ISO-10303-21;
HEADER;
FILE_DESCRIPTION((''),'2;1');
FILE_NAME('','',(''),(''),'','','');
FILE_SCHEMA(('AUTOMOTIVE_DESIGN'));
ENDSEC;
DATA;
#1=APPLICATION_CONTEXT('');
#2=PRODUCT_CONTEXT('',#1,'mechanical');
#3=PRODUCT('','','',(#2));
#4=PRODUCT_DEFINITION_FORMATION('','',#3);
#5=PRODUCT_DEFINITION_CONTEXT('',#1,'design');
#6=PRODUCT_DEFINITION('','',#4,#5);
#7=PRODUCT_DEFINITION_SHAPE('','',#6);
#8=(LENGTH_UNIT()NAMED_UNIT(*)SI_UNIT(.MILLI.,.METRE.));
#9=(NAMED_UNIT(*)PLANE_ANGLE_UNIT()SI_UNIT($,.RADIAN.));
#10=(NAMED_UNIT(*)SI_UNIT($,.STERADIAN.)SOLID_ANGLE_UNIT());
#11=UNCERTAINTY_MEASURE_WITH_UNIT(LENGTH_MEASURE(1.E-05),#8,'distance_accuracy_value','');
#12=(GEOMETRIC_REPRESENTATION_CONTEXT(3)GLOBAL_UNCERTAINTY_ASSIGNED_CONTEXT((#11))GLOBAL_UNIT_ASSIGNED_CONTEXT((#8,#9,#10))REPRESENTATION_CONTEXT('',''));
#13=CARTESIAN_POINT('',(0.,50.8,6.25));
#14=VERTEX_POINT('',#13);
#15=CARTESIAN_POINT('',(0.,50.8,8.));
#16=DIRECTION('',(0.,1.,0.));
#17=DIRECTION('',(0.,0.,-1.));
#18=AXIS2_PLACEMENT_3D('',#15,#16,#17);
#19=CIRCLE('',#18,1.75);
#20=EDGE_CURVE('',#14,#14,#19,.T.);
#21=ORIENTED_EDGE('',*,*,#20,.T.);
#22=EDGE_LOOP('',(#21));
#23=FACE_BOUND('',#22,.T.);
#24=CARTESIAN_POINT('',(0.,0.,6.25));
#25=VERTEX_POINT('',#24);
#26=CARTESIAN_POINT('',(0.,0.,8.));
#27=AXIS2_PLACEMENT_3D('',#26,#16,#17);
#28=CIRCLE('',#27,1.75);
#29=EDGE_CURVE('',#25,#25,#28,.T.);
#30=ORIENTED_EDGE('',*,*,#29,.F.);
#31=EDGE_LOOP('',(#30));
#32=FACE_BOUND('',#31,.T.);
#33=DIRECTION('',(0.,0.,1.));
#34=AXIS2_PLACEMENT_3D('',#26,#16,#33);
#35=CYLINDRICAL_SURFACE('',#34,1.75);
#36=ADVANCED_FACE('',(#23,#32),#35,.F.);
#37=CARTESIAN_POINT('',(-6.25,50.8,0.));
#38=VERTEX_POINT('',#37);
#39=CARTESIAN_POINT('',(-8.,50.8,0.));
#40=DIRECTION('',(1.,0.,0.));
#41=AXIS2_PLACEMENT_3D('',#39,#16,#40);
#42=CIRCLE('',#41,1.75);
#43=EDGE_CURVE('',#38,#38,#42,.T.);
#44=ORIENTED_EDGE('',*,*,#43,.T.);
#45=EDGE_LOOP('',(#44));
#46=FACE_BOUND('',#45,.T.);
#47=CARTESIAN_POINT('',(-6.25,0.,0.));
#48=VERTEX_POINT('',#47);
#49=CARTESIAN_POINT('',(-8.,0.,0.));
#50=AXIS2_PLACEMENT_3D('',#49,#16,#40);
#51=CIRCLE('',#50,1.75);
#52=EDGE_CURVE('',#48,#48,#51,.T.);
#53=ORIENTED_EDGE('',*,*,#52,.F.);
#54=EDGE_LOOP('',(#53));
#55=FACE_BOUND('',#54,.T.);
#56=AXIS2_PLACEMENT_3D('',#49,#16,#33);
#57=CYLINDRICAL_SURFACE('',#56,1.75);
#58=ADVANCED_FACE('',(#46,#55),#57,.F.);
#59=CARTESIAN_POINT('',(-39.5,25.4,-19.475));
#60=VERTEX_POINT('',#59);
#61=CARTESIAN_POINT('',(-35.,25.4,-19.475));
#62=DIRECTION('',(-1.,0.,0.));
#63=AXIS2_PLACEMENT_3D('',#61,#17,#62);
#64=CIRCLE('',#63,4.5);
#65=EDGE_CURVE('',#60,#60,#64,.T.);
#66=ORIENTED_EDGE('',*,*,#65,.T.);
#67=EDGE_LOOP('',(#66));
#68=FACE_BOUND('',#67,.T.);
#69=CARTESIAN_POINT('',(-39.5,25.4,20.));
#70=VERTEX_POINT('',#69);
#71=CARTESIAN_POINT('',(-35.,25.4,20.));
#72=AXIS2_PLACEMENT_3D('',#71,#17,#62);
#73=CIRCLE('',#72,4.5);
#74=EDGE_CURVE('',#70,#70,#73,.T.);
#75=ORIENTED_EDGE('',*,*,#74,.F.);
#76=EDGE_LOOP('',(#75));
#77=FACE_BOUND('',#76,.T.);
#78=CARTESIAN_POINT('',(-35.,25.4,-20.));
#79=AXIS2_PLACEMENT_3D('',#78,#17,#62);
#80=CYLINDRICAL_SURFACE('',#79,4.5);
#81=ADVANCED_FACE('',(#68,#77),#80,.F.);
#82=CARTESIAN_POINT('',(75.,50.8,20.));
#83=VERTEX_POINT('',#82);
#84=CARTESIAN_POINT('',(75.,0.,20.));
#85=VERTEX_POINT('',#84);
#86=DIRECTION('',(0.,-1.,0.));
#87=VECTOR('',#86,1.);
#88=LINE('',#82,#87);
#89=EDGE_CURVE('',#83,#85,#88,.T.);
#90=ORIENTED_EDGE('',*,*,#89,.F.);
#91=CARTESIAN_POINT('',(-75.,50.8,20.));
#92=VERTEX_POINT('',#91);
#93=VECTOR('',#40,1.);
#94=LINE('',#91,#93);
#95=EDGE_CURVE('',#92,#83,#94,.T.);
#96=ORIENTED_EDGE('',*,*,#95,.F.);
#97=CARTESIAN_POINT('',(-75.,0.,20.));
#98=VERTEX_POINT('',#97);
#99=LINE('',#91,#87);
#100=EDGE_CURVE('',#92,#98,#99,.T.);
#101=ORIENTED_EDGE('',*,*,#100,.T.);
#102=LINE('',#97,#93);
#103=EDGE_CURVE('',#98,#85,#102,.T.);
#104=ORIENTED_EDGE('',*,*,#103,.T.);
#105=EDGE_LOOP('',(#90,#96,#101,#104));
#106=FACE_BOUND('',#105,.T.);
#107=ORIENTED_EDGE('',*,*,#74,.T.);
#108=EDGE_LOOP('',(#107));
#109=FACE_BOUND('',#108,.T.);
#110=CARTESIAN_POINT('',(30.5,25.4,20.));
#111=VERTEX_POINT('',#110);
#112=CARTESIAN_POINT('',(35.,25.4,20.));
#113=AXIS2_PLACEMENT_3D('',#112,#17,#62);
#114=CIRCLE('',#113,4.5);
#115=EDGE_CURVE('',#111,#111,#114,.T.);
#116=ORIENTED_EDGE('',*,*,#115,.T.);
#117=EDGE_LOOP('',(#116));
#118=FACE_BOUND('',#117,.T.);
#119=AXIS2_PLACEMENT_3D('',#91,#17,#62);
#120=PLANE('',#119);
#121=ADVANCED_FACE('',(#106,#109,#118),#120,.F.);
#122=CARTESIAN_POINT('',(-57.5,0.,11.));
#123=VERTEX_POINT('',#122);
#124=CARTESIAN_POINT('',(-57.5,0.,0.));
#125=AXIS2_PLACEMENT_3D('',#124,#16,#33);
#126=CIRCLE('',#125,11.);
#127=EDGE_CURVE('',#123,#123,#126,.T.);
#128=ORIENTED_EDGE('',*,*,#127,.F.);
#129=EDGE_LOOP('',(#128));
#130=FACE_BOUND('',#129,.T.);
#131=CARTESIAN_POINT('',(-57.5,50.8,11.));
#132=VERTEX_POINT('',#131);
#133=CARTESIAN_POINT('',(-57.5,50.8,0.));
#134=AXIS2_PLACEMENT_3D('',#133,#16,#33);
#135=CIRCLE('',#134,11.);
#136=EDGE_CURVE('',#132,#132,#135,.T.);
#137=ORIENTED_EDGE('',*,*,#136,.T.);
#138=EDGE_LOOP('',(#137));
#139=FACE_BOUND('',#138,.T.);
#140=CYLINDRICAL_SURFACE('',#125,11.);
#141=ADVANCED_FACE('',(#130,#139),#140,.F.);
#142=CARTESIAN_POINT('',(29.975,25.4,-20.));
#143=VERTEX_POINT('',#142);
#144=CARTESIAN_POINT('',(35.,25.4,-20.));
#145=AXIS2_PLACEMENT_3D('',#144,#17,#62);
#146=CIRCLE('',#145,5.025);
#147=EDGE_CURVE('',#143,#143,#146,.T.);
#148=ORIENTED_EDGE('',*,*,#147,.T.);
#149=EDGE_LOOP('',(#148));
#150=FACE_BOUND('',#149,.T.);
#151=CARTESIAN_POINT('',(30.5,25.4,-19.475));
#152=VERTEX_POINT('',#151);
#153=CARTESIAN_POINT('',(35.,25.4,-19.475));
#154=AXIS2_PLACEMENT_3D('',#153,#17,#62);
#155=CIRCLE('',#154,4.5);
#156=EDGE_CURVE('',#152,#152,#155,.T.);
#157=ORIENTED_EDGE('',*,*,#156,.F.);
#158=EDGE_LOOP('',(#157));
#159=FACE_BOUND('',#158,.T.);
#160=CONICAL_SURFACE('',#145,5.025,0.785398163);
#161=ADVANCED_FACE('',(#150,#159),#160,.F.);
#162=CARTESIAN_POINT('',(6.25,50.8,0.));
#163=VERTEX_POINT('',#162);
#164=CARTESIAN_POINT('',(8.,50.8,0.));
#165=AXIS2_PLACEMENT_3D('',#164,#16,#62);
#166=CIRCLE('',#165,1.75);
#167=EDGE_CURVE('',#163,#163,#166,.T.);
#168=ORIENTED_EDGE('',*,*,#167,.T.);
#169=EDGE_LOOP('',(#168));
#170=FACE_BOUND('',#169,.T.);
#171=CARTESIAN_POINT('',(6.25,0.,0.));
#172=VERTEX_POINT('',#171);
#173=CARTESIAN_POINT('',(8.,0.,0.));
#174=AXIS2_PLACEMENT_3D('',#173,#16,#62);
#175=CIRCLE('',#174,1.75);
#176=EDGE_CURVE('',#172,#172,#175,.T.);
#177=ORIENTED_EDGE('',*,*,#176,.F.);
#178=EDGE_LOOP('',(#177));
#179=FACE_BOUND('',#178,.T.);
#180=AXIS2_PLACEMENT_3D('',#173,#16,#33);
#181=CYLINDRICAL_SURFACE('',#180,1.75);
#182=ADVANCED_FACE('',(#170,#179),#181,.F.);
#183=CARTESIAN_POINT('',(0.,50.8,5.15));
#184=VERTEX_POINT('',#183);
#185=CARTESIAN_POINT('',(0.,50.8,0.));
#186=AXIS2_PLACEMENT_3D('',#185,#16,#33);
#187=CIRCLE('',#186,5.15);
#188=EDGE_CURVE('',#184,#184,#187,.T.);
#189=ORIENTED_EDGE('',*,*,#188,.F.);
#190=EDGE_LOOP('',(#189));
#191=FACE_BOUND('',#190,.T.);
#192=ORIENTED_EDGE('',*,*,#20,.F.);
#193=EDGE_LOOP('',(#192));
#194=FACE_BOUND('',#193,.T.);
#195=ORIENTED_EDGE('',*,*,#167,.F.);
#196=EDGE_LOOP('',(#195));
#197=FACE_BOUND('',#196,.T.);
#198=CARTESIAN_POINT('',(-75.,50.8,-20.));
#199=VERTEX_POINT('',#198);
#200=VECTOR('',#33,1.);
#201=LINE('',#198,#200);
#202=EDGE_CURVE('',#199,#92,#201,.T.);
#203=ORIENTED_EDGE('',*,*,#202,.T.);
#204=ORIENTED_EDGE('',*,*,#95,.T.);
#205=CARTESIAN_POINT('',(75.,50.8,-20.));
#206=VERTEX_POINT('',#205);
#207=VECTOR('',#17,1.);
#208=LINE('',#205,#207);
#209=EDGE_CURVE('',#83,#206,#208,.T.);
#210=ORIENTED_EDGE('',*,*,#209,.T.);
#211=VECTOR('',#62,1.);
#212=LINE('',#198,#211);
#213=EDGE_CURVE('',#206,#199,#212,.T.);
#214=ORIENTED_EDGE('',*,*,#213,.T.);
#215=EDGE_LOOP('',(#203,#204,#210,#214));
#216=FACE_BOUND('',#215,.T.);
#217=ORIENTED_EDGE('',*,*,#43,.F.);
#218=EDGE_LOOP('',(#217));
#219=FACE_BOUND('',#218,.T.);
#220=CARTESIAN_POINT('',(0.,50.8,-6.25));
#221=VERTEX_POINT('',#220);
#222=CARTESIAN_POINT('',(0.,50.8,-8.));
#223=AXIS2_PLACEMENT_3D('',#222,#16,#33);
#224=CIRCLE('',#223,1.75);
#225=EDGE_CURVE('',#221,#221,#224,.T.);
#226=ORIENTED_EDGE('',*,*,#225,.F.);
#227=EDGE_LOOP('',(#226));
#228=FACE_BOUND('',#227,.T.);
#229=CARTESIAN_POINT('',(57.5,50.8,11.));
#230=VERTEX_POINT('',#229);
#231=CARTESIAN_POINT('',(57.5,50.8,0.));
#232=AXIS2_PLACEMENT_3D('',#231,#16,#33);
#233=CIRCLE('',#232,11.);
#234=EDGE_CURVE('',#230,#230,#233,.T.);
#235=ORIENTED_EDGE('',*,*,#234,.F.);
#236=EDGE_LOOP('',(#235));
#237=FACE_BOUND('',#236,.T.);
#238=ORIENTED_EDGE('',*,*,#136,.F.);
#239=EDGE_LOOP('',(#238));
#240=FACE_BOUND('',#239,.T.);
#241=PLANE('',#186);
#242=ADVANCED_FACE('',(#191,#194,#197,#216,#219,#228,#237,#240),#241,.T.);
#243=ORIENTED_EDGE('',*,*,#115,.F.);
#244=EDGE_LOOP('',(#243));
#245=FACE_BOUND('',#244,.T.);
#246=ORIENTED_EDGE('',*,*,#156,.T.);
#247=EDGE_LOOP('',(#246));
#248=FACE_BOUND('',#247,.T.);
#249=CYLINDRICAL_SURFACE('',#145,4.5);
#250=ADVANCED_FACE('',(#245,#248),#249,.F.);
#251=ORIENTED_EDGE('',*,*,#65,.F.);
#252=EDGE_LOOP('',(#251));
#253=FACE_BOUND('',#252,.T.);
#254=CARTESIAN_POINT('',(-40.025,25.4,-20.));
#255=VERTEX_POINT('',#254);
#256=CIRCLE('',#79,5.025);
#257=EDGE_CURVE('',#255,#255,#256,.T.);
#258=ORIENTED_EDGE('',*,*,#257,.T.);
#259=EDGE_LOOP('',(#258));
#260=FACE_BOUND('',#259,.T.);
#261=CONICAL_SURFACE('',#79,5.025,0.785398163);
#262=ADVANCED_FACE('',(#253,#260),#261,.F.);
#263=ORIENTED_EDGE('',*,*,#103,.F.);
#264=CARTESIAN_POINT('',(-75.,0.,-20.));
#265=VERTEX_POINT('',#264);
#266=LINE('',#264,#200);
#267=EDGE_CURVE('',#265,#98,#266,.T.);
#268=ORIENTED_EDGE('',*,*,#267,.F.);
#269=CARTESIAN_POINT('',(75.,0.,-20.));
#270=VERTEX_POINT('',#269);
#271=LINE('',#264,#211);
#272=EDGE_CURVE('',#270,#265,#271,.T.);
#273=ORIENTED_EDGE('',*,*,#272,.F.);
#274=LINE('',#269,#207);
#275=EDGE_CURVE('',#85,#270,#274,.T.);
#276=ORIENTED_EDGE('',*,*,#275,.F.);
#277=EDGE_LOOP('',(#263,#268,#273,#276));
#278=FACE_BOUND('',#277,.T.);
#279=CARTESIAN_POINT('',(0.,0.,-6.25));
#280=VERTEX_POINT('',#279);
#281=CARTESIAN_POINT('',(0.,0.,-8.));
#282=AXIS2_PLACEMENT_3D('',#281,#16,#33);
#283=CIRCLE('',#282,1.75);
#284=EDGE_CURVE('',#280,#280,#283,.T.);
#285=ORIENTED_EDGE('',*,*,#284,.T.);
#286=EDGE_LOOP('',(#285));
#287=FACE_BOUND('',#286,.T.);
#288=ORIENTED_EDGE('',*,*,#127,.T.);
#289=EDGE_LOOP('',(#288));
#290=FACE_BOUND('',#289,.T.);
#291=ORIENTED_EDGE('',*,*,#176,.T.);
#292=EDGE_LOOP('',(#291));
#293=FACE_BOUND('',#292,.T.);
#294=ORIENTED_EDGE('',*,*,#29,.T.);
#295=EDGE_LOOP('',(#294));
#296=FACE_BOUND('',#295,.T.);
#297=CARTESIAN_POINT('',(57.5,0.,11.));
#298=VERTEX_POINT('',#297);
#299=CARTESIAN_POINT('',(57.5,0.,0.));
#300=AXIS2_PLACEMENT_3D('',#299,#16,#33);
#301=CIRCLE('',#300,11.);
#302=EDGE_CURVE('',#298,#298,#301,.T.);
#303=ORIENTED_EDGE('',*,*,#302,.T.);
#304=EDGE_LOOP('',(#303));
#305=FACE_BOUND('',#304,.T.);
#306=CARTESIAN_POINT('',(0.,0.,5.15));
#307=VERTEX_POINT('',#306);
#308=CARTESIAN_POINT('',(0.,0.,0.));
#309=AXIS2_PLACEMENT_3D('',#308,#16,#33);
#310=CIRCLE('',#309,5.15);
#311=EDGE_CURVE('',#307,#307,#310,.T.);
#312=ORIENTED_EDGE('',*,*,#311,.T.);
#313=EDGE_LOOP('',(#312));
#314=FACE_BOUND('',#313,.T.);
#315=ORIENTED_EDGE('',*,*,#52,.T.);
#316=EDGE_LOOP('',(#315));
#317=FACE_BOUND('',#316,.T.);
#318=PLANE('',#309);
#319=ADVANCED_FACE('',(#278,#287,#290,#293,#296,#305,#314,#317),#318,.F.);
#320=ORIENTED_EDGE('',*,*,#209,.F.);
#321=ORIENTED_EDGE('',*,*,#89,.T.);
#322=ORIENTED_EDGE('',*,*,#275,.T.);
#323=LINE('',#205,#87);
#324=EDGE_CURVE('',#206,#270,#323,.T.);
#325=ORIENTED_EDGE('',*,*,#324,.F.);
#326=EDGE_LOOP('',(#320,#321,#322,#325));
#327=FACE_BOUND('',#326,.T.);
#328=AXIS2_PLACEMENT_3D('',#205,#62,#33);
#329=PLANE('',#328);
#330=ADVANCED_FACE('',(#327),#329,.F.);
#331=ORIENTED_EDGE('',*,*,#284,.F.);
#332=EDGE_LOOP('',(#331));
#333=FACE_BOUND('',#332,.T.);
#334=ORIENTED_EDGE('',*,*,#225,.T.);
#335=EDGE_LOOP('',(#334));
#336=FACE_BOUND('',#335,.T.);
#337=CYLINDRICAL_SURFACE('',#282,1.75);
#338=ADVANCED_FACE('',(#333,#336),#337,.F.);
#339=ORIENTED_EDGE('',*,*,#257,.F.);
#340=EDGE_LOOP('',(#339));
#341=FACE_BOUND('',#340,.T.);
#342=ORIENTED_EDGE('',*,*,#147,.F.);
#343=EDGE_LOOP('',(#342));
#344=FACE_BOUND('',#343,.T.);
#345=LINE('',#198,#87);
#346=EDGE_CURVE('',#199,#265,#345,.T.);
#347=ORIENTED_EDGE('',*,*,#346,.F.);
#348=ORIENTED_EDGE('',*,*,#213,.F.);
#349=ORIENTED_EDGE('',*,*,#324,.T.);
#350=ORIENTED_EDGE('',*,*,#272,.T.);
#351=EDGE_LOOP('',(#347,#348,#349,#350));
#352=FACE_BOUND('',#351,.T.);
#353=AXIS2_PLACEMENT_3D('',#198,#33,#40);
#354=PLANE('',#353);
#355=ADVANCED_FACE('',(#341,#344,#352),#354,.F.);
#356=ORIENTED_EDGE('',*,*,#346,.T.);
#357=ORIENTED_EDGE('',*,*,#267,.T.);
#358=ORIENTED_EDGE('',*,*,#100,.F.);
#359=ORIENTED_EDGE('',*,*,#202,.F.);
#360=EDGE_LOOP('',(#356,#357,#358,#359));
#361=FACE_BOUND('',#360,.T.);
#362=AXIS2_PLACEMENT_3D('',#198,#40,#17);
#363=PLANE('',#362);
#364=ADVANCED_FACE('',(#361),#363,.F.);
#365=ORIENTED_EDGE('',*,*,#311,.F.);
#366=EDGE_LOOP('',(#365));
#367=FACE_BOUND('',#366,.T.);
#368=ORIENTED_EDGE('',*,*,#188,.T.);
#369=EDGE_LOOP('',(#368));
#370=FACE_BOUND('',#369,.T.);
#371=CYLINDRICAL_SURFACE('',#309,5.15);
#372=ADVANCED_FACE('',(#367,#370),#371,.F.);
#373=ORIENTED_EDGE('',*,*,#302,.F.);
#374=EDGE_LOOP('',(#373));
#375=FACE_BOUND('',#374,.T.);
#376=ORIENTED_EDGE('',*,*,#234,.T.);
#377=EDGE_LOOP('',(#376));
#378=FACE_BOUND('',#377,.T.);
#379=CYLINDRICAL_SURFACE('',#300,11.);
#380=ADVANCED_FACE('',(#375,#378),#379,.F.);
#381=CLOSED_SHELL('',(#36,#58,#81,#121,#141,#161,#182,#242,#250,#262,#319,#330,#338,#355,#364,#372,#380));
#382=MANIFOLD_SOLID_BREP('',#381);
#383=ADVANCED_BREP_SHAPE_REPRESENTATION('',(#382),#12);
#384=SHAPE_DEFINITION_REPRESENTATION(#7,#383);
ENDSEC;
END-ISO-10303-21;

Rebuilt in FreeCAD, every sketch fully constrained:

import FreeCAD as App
import Part
import Sketcher
from FreeCAD import Vector
Q = App.Units.Quantity


def add_polygon(sketch, points):
    """Adds a closed chain of lines whose ends are joined by coincident constraints."""
    first, n = sketch.GeometryCount, len(points)
    for a, b in zip(points, points[1:] + points[:1]):
        sketch.addGeometry(Part.LineSegment(App.Vector(*a, 0), App.Vector(*b, 0)), False)
    for i in range(n):
        sketch.addConstraint(Sketcher.Constraint("Coincident", first + i, 2, first + (i + 1) % n, 1))

doc = App.newDocument("Part")
body = doc.addObject("PartDesign::Body", "Body")

sketch1 = doc.addObject("Sketcher::SketchObject", "Sketch")
body.addObject(sketch1)
sketch1.AttachmentSupport = (doc.XZ_Plane, [""])
sketch1.MapMode = "FlatFace"
add_polygon(sketch1, [(-75, -20), (-75, 20), (75, 20), (75, -20)])
sketch1.addConstraint(Sketcher.Constraint("Vertical", 0))
sketch1.addConstraint(Sketcher.Constraint("Horizontal", 1))
sketch1.addConstraint(Sketcher.Constraint("Vertical", 2))
sketch1.addConstraint(Sketcher.Constraint("Horizontal", 3))
sketch1.addConstraint(Sketcher.Constraint("Symmetric", 0, 2, 2, 2, -1, 1))
sketch1.addConstraint(Sketcher.Constraint("DistanceX", 1, 1, 1, 2, Q("150 mm")))
sketch1.addConstraint(Sketcher.Constraint("DistanceY", 0, 1, 0, 2, Q("40 mm")))
pad1 = doc.addObject("PartDesign::Pad", "Pad")
body.addObject(pad1)
pad1.Profile = sketch1
pad1.Length = 50.8
pad1.Reversed = True

sketch2 = doc.addObject("Sketcher::SketchObject", "Sketch001")
body.addObject(sketch2)
sketch2.AttachmentSupport = (doc.XZ_Plane, [""])
sketch2.MapMode = "FlatFace"
sketch2.AttachmentOffset = App.Placement(Vector(0, 0, -50.8), App.Rotation())
sketch2.addGeometry(Part.Circle(Vector(0, 0, 0), Vector(0, 0, 1), 5), False)
sketch2.addGeometry(Part.Circle(Vector(-58, 0, 0), Vector(0, 0, 1), 11), False)
sketch2.addGeometry(Part.Circle(Vector(58, 0, 0), Vector(0, 0, 1), 11), False)
sketch2.addConstraint(Sketcher.Constraint("Coincident", 0, 3, -1, 1))
sketch2.addConstraint(Sketcher.Constraint("Equal", 1, 2))
sketch2.addConstraint(Sketcher.Constraint("Symmetric", 1, 3, 2, 3, -1, 1))
sketch2.addConstraint(Sketcher.Constraint("PointOnObject", 1, 3, -1))
sketch2.addConstraint(Sketcher.Constraint("Diameter", 1, Q("22 mm")))
sketch2.addConstraint(Sketcher.Constraint("Diameter", 0, Q("10.3 mm")))
sketch2.addConstraint(Sketcher.Constraint("DistanceX", 1, 3, 2, 3, Q("115 mm")))
pocket1 = doc.addObject("PartDesign::Pocket", "Pocket")
body.addObject(pocket1)
pocket1.Profile = sketch2
pocket1.Type = "ThroughAll"
pocket1.Reversed = True

sketch3 = doc.addObject("Sketcher::SketchObject", "Sketch002")
body.addObject(sketch3)
sketch3.AttachmentSupport = (doc.XZ_Plane, [""])
sketch3.MapMode = "FlatFace"
sketch3.AttachmentOffset = App.Placement(Vector(0, 0, -50.8), App.Rotation())
sketch3.addGeometry(Part.Circle(Vector(0, -8, 0), Vector(0, 0, 1), 1.8), False)
sketch3.addConstraint(Sketcher.Constraint("PointOnObject", 0, 3, -2))
sketch3.addConstraint(Sketcher.Constraint("Diameter", 0, Q("3.5 mm")))
sketch3.addConstraint(Sketcher.Constraint("DistanceY", 0, 3, -1, 1, Q("8 mm")))
pocket2 = doc.addObject("PartDesign::Pocket", "Pocket001")
body.addObject(pocket2)
pocket2.Profile = sketch3
pocket2.Type = "ThroughAll"
pocket2.Reversed = True
doc.recompute()

polarpattern = doc.addObject("PartDesign::PolarPattern", "PolarPattern")
body.addObject(polarpattern)
polarpattern.Originals = [pocket2]
polarpattern.Axis = (doc.Y_Axis, [""])
polarpattern.Angle = 360
polarpattern.Occurrences = 4
body.Tip = polarpattern

sketch4 = doc.addObject("Sketcher::SketchObject", "Sketch003")
body.addObject(sketch4)
sketch4.AttachmentSupport = (doc.XY_Plane, [""])
sketch4.MapMode = "FlatFace"
sketch4.AttachmentOffset = App.Placement(Vector(0, 0, -20), App.Rotation())
sketch4.addGeometry(Part.Circle(Vector(-35, 25.4, 0), Vector(0, 0, 1), 4), False)
sketch4.addGeometry(Part.Circle(Vector(35, 25.4, 0), Vector(0, 0, 1), 4), False)
sketch4.addConstraint(Sketcher.Constraint("Equal", 0, 1))
sketch4.addConstraint(Sketcher.Constraint("Symmetric", 0, 3, 1, 3, -2))
sketch4.addConstraint(Sketcher.Constraint("Diameter", 0, Q("8 mm")))
sketch4.addConstraint(Sketcher.Constraint("DistanceX", 0, 3, -1, 1, Q("35 mm")))
sketch4.addConstraint(Sketcher.Constraint("DistanceY", -1, 1, 0, 3, Q("25.4 mm")))
pocket3 = doc.addObject("PartDesign::Pocket", "Pocket002")
body.addObject(pocket3)
pocket3.Profile = sketch4
pocket3.Type = "ThroughAll"
pocket3.Reversed = True

sketch5 = doc.addObject("Sketcher::SketchObject", "Sketch004")
body.addObject(sketch5)
sketch5.AttachmentSupport = (doc.XY_Plane, [""])
sketch5.MapMode = "FlatFace"
sketch5.AttachmentOffset = App.Placement(Vector(0, 0, -20), App.Rotation())
sketch5.addGeometry(Part.Circle(Vector(-35, 25.4, 0), Vector(0, 0, 1), 4.5), False)
sketch5.addGeometry(Part.Circle(Vector(35, 25.4, 0), Vector(0, 0, 1), 4.5), False)
sketch5.addConstraint(Sketcher.Constraint("Equal", 0, 1))
sketch5.addConstraint(Sketcher.Constraint("Symmetric", 0, 3, 1, 3, -2))
sketch5.addConstraint(Sketcher.Constraint("Diameter", 0, Q("9 mm")))
sketch5.addConstraint(Sketcher.Constraint("DistanceX", 0, 3, -1, 1, Q("35 mm")))
sketch5.addConstraint(Sketcher.Constraint("DistanceY", -1, 1, 0, 3, Q("25.4 mm")))
doc.recompute()
hole = doc.addObject("PartDesign::Hole", "Hole")
body.addObject(hole)
hole.Profile = sketch5
hole.ThreadType = "None"
hole.Diameter = 9
hole.DepthType = "ThroughAll"
hole.HoleCutType = "Countersink"
hole.HoleCutDiameter = 10.05
hole.HoleCutCountersinkAngle = 90
hole.Reversed = True

doc.recompute()
